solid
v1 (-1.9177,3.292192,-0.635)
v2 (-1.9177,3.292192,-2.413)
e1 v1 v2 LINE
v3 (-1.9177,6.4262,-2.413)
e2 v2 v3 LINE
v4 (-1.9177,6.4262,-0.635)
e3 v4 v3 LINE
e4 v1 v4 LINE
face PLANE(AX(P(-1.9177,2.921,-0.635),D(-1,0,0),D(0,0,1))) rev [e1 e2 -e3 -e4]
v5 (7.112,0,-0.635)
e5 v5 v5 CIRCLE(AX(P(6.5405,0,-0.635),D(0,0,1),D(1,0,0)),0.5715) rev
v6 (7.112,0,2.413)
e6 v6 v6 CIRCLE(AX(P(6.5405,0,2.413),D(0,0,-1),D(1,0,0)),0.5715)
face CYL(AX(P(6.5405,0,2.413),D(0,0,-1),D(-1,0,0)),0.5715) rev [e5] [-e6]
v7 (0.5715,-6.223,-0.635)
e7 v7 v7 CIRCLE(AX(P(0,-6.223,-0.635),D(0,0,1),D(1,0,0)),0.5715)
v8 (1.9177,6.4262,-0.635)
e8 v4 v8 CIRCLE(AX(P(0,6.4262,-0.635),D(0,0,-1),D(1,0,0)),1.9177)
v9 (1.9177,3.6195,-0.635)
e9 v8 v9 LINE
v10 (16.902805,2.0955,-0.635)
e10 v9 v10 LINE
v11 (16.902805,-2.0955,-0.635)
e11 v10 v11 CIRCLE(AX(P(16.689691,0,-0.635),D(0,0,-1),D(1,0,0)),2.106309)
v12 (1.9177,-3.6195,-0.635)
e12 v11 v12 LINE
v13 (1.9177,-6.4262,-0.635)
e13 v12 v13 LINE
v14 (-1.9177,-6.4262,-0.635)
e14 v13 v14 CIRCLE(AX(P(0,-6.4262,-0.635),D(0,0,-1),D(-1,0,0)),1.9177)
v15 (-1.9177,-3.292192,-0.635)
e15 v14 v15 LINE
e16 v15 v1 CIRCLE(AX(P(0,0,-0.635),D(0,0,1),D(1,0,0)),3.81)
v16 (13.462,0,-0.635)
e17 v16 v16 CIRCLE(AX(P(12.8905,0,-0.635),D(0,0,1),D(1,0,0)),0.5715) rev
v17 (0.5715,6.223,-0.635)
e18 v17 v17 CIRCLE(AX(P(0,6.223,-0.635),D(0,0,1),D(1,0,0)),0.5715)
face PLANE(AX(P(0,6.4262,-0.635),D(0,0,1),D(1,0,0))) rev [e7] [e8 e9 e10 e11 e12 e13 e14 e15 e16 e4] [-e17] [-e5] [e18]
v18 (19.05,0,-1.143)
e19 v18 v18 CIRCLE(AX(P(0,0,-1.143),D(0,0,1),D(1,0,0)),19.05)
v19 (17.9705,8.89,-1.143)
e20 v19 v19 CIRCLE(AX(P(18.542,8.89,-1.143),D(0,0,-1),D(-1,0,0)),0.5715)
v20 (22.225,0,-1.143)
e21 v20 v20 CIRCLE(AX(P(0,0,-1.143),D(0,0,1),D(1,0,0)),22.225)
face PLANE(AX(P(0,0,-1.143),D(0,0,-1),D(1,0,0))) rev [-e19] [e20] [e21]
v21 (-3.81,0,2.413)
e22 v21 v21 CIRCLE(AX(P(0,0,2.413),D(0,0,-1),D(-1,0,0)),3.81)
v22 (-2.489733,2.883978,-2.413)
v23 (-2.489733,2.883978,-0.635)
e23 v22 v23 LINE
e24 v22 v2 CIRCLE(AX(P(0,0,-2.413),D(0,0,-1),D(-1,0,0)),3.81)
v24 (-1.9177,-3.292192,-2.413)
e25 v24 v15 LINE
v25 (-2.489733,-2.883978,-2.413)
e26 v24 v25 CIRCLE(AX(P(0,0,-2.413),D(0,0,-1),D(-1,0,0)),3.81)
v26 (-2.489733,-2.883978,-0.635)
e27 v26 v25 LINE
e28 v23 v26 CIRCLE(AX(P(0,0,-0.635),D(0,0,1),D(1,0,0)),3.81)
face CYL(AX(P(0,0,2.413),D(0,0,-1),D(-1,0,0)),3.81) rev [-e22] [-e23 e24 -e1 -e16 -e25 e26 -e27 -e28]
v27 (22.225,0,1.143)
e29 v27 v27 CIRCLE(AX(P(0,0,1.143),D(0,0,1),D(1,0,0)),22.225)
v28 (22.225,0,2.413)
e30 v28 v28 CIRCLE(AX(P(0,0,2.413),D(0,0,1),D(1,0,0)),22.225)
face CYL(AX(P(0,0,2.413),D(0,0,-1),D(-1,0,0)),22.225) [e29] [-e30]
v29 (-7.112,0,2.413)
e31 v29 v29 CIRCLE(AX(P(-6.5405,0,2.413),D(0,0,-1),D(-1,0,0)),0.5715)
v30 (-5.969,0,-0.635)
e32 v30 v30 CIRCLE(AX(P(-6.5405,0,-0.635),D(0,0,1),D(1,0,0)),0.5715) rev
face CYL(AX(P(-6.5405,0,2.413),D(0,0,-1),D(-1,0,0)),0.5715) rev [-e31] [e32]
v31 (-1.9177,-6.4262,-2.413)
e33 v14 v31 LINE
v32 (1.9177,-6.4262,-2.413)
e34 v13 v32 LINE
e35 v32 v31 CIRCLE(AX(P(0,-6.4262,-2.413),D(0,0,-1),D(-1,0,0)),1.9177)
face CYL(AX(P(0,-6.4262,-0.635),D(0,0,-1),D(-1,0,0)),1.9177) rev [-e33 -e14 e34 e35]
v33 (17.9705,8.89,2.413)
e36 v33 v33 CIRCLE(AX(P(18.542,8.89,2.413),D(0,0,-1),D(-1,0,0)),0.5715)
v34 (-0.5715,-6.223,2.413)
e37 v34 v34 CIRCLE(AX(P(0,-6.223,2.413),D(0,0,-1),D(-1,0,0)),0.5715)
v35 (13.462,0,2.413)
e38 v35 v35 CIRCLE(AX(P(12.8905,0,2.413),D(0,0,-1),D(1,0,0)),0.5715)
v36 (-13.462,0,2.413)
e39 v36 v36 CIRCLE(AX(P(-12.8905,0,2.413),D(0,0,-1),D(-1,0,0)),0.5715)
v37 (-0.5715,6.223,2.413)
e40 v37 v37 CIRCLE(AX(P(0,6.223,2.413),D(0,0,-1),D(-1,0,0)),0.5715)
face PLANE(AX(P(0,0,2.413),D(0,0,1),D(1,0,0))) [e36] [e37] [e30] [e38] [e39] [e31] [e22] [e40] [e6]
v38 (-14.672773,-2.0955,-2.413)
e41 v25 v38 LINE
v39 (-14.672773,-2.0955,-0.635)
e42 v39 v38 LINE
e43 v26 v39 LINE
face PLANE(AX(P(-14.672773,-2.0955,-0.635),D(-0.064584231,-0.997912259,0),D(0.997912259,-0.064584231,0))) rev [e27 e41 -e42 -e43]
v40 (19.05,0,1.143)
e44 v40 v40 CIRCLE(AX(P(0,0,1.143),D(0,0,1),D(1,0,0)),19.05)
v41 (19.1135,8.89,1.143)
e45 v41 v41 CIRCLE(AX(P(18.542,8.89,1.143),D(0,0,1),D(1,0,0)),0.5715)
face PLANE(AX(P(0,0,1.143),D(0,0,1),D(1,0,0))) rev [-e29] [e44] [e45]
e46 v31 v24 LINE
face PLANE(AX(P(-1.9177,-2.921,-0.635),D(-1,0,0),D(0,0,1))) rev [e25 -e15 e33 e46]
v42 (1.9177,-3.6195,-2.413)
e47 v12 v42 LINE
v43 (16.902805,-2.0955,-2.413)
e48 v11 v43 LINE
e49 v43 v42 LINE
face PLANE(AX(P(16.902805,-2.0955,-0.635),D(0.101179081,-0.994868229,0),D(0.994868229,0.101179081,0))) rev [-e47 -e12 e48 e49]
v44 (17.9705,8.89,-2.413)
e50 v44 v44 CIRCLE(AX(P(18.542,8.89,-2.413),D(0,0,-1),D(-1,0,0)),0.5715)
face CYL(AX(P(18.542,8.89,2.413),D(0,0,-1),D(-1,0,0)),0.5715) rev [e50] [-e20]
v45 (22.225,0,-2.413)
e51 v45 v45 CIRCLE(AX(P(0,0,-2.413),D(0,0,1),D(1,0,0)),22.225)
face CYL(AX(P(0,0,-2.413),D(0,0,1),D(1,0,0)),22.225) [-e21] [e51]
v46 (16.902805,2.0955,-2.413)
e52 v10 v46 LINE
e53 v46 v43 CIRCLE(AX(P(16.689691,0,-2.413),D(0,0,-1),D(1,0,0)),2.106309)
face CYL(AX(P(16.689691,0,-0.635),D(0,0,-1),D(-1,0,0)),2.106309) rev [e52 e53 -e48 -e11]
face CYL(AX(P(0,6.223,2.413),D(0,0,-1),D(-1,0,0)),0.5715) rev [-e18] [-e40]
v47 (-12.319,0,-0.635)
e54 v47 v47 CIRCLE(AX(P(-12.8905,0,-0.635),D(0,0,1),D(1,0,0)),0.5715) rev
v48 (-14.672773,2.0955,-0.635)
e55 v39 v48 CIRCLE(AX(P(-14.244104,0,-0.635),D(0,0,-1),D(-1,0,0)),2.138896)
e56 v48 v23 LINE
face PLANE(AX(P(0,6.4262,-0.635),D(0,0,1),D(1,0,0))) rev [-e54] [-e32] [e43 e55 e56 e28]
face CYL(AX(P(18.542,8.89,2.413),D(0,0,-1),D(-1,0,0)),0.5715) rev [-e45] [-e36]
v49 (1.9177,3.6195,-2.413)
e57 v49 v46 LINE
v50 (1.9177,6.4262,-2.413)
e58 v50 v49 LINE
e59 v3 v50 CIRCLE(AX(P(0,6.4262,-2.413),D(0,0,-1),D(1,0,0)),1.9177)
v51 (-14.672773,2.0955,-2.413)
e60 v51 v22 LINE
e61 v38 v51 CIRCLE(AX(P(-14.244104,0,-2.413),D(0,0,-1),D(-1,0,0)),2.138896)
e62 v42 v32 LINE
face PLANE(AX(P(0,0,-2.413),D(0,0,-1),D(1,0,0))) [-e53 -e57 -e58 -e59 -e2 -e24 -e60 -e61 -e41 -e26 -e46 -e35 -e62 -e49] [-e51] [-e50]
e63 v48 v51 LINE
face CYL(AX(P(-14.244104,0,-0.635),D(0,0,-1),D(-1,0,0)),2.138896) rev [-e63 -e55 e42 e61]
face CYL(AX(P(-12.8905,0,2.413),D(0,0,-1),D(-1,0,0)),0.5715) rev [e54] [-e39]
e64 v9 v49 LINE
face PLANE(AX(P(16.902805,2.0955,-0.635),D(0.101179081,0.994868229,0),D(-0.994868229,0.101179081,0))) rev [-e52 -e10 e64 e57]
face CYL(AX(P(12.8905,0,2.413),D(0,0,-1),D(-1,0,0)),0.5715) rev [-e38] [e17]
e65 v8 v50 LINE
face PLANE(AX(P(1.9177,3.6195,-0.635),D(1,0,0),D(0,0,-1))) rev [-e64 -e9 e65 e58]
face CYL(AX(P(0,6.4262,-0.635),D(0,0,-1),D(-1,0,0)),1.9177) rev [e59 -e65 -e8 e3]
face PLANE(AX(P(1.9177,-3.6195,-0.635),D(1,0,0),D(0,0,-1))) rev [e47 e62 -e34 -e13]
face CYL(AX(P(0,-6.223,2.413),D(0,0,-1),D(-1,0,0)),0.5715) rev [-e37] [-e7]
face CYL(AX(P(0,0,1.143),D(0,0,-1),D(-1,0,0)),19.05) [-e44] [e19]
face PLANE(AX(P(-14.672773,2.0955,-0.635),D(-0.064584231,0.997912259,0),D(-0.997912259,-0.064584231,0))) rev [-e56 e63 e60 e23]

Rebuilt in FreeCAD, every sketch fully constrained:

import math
import FreeCAD as App
import Part
import Sketcher
Q = App.Units.Quantity

doc = App.newDocument("Part")
body = doc.addObject("PartDesign::Body", "Body")

# Sketch on XY plane
sketch1 = doc.addObject("Sketcher::SketchObject", "Sketch")
body.addObject(sketch1)
sketch1.AttachmentSupport = (doc.XY_Plane, [""])
sketch1.MapMode = "FlatFace"
sketch1.addGeometry(Part.Circle(App.Vector(0, 0, 0), App.Vector(0, 0, 1), 19), False)
sketch1.addConstraint(Sketcher.Constraint("Coincident", 0, 3, -1, 1))
sketch1.addConstraint(Sketcher.Constraint("Diameter", 0, Q("1.5 in")))
pad1 = doc.addObject("PartDesign::Pad", "Pad")
body.addObject(pad1)
pad1.Profile = sketch1
pad1.Length = Q("0.09 in")
pad1.Midplane = True

# Sketch on XY plane
sketch2 = doc.addObject("Sketcher::SketchObject", "Sketch001")
body.addObject(sketch2)
sketch2.AttachmentSupport = (doc.XY_Plane, [""])
sketch2.MapMode = "FlatFace"
sketch2.AttachmentOffset = App.Placement(App.Vector(0, 0, 0.045 * 25.4), App.Rotation())
sketch2.addGeometry(Part.Circle(App.Vector(0, 0, 0), App.Vector(0, 0, 1), 22), False)
sketch2.addConstraint(Sketcher.Constraint("Coincident", 0, 3, -1, 1))
sketch2.addConstraint(Sketcher.Constraint("Diameter", 0, Q("1.75 in")))
pad2 = doc.addObject("PartDesign::Pad", "Pad001")
body.addObject(pad2)
pad2.Profile = sketch2
pad2.Length = Q("0.05 in")
doc.recompute()

mirrored = doc.addObject("PartDesign::Mirrored", "Mirrored")
body.addObject(mirrored)
mirrored.Originals = [pad2]
mirrored.MirrorPlane = (doc.XY_Plane, [""])
body.Tip = mirrored

# Sketch on XY plane
sketch3 = doc.addObject("Sketcher::SketchObject", "Sketch002")
body.addObject(sketch3)
sketch3.AttachmentSupport = (doc.XY_Plane, [""])
sketch3.MapMode = "FlatFace"
sketch3.AttachmentOffset = App.Placement(App.Vector(0, 0, -0.095 * 25.4), App.Rotation())
sketch3.addGeometry(Part.Circle(App.Vector(0, 0, 0), App.Vector(0, 0, 1), 3.6), False)
sketch3.addConstraint(Sketcher.Constraint("Coincident", 0, 3, -1, 1))
sketch3.addConstraint(Sketcher.Constraint("Diameter", 0, Q("0.28 in")))
pocket1 = doc.addObject("PartDesign::Pocket", "Pocket")
body.addObject(pocket1)
pocket1.Profile = sketch3
pocket1.Type = "ThroughAll"
pocket1.Reversed = True

# Sketch on XY plane
sketch4 = doc.addObject("Sketcher::SketchObject", "Sketch003")
body.addObject(sketch4)
sketch4.AttachmentSupport = (doc.XY_Plane, [""])
sketch4.MapMode = "FlatFace"
sketch4.AttachmentOffset = App.Placement(App.Vector(0, 0, -0.095 * 25.4), App.Rotation())
sketch4.addGeometry(Part.Circle(App.Vector(-12.9, 0, 0), App.Vector(0, 0, 1), 0.6), False)
sketch4.addGeometry(Part.Circle(App.Vector(-6.5, 0, 0), App.Vector(0, 0, 1), 0.6), False)
sketch4.addGeometry(Part.Circle(App.Vector(12.9, 0, 0), App.Vector(0, 0, 1), 0.6), False)
sketch4.addGeometry(Part.Circle(App.Vector(6.5, 0, 0), App.Vector(0, 0, 1), 0.6), False)
sketch4.addConstraint(Sketcher.Constraint("Equal", 0, 1))
sketch4.addConstraint(Sketcher.Constraint("Equal", 1, 2))
sketch4.addConstraint(Sketcher.Constraint("Equal", 2, 3))
sketch4.addConstraint(Sketcher.Constraint("Symmetric", 0, 3, 2, 3, -1, 1))
sketch4.addConstraint(Sketcher.Constraint("Symmetric", 1, 3, 3, 3, -1, 1))
sketch4.addConstraint(Sketcher.Constraint("PointOnObject", 0, 3, -1))
sketch4.addConstraint(Sketcher.Constraint("PointOnObject", 1, 3, -1))
sketch4.addConstraint(Sketcher.Constraint("Diameter", 0, Q("0.045 in")))
sketch4.addConstraint(Sketcher.Constraint("DistanceX", 0, 3, 1, 3, Q("0.25 in")))
sketch4.addConstraint(Sketcher.Constraint("DistanceX", 1, 3, 2, 3, Q("0.765 in")))
pocket2 = doc.addObject("PartDesign::Pocket", "Pocket001")
body.addObject(pocket2)
pocket2.Profile = sketch4
pocket2.Type = "ThroughAll"
pocket2.Reversed = True

# Sketch on XY plane
sketch5 = doc.addObject("Sketcher::SketchObject", "Sketch004")
body.addObject(sketch5)
sketch5.AttachmentSupport = (doc.XY_Plane, [""])
sketch5.MapMode = "FlatFace"
sketch5.AttachmentOffset = App.Placement(App.Vector(0, 0, -0.095 * 25.4), App.Rotation())
sketch5.addGeometry(Part.Circle(App.Vector(18.5, 8.9, 0), App.Vector(0, 0, 1), 0.6), False)
sketch5.addConstraint(Sketcher.Constraint("Diameter", 0, Q("0.045 in")))
sketch5.addConstraint(Sketcher.Constraint("DistanceX", -1, 1, 0, 3, Q("0.73 in")))
sketch5.addConstraint(Sketcher.Constraint("DistanceY", -1, 1, 0, 3, Q("0.35 in")))
pocket3 = doc.addObject("PartDesign::Pocket", "Pocket002")
body.addObject(pocket3)
pocket3.Profile = sketch5
pocket3.Type = "ThroughAll"
pocket3.Reversed = True

# Sketch on XY plane
sketch6 = doc.addObject("Sketcher::SketchObject", "Sketch005")
body.addObject(sketch6)
sketch6.AttachmentSupport = (doc.XY_Plane, [""])
sketch6.MapMode = "FlatFace"
sketch6.AttachmentOffset = App.Placement(App.Vector(0, 0, -0.095 * 25.4), App.Rotation())
sketch6.addGeometry(Part.LineSegment(App.Vector(1.9, 6.4, 0), App.Vector(1.9, 3.6, 0)), False)
sketch6.addGeometry(Part.LineSegment(App.Vector(1.9, 3.6, 0), App.Vector(16.9, 2.1, 0)), False)
sketch6.addGeometry(Part.ArcOfCircle(Part.Circle(App.Vector(16.7, 0, 0), App.Vector(0, 0, 1), 2.1), math.radians(-84), math.radians(84)), False)
sketch6.addGeometry(Part.LineSegment(App.Vector(16.9, -2.1, 0), App.Vector(1.9, -3.6, 0)), False)
sketch6.addGeometry(Part.LineSegment(App.Vector(1.9, -3.6, 0), App.Vector(1.9, -6.4, 0)), False)
sketch6.addGeometry(Part.ArcOfCircle(Part.Circle(App.Vector(0, -6.4, 0), App.Vector(0, 0, 1), 1.9), math.radians(180), math.radians(360)), False)
sketch6.addGeometry(Part.LineSegment(App.Vector(-1.9, -6.4, 0), App.Vector(-1.9, -2.9, 0)), False)
sketch6.addGeometry(Part.LineSegment(App.Vector(-1.9, -2.9, 0), App.Vector(-14.7, -2.1, 0)), False)
sketch6.addGeometry(Part.ArcOfCircle(Part.Circle(App.Vector(-14.2, 0, 0), App.Vector(0, 0, 1), 2.1), math.radians(102), math.radians(258)), False)
sketch6.addGeometry(Part.LineSegment(App.Vector(-14.7, 2.1, 0), App.Vector(-1.9, 2.9, 0)), False)
sketch6.addGeometry(Part.LineSegment(App.Vector(-1.9, 2.9, 0), App.Vector(-1.9, 6.4, 0)), False)
sketch6.addGeometry(Part.ArcOfCircle(Part.Circle(App.Vector(0, 6.4, 0), App.Vector(0, 0, 1), 1.9), math.radians(0), math.radians(180)), False)
sketch6.addConstraint(Sketcher.Constraint("Coincident", 0, 2, 1, 1))
sketch6.addConstraint(Sketcher.Constraint("Tangent", 1, 2, 2, 2))
sketch6.addConstraint(Sketcher.Constraint("Tangent", 2, 1, 3, 1))
sketch6.addConstraint(Sketcher.Constraint("Coincident", 3, 2, 4, 1))
sketch6.addConstraint(Sketcher.Constraint("Tangent", 4, 2, 5, 2))
sketch6.addConstraint(Sketcher.Constraint("Tangent", 5, 1, 6, 1))
sketch6.addConstraint(Sketcher.Constraint("Coincident", 6, 2, 7, 1))
sketch6.addConstraint(Sketcher.Constraint("Coincident", 7, 2, 8, 2))
sketch6.addConstraint(Sketcher.Constraint("Coincident", 8, 1, 9, 1))
sketch6.addConstraint(Sketcher.Constraint("Coincident", 9, 2, 10, 1))
sketch6.addConstraint(Sketcher.Constraint("Tangent", 10, 2, 11, 2))
sketch6.addConstraint(Sketcher.Constraint("Tangent", 11, 1, 0, 1))
sketch6.addConstraint(Sketcher.Constraint("Vertical", 0))
sketch6.addConstraint(Sketcher.Constraint("Vertical", 4))
sketch6.addConstraint(Sketcher.Constraint("Vertical", 6))
sketch6.addConstraint(Sketcher.Constraint("Vertical", 10))
sketch6.addConstraint(Sketcher.Constraint("Equal", 5, 11))
sketch6.addConstraint(Sketcher.Constraint("Symmetric", 5, 3, 11, 3, -1, 1))
sketch6.addConstraint(Sketcher.Constraint("Symmetric", 1, 2, 2, 1, -1))
sketch6.addConstraint(Sketcher.Constraint("Symmetric", 7, 2, 8, 1, -1))
sketch6.addConstraint(Sketcher.Constraint("Symmetric", 6, 2, 9, 2, -1))
sketch6.addConstraint(Sketcher.Constraint("Horizontal", 2, 1, 7, 2))
sketch6.addConstraint(Sketcher.Constraint("Radius", 5, Q("0.0755 in")))
sketch6.addConstraint(Sketcher.Constraint("DistanceY", 6, 1, 6, 2, Q("0.138 in")))
sketch6.addConstraint(Sketcher.Constraint("DistanceY", 1, 2, 0, 2, Q("0.06 in")))
sketch6.addConstraint(Sketcher.Constraint("DistanceY", 6, 2, 9, 2, Q("0.23 in")))
sketch6.addConstraint(Sketcher.Constraint("DistanceY", 0, 2, 0, 1, Q("0.1105 in")))
sketch6.addConstraint(Sketcher.Constraint("Radius", 8, Q("2.138896 mm")))
sketch6.addConstraint(Sketcher.Constraint("DistanceX", -1, 1, 2, 3, Q("16.689691 mm")))
sketch6.addConstraint(Sketcher.Constraint("DistanceX", 8, 3, 1, 2, Q("31.146909 mm")))
pocket4 = doc.addObject("PartDesign::Pocket", "Pocket003")
body.addObject(pocket4)
pocket4.Profile = sketch6
pocket4.Length = Q("0.07 in")
pocket4.Reversed = True

# Sketch on XY plane
sketch7 = doc.addObject("Sketcher::SketchObject", "Sketch006")
body.addObject(sketch7)
sketch7.AttachmentSupport = (doc.XY_Plane, [""])
sketch7.MapMode = "FlatFace"
sketch7.AttachmentOffset = App.Placement(App.Vector(0, 0, -0.095 * 25.4), App.Rotation())
sketch7.addGeometry(Part.Circle(App.Vector(0, -6.2, 0), App.Vector(0, 0, 1), 0.6), False)
sketch7.addGeometry(Part.Circle(App.Vector(0, 6.2, 0), App.Vector(0, 0, 1), 0.6), False)
sketch7.addConstraint(Sketcher.Constraint("Equal", 0, 1))
sketch7.addConstraint(Sketcher.Constraint("Symmetric", 0, 3, 1, 3, -1, 1))
sketch7.addConstraint(Sketcher.Constraint("PointOnObject", 0, 3, -2))
sketch7.addConstraint(Sketcher.Constraint("Diameter", 0, Q("0.045 in")))
sketch7.addConstraint(Sketcher.Constraint("DistanceY", 0, 3, 1, 3, Q("0.49 in")))
pocket5 = doc.addObject("PartDesign::Pocket", "Pocket004")
body.addObject(pocket5)
pocket5.Profile = sketch7
pocket5.Type = "ThroughAll"
pocket5.Reversed = True

# Sketch on XY plane
sketch8 = doc.addObject("Sketcher::SketchObject", "Sketch007")
body.addObject(sketch8)
sketch8.AttachmentSupport = (doc.XY_Plane, [""])
sketch8.MapMode = "FlatFace"
sketch8.AttachmentOffset = App.Placement(App.Vector(0, 0, -0.095 * 25.4), App.Rotation())
sketch8.addGeometry(Part.Circle(App.Vector(0, 0, 0), App.Vector(0, 0, 1), 3.8), False)
sketch8.addConstraint(Sketcher.Constraint("Coincident", 0, 3, -1, 1))
sketch8.addConstraint(Sketcher.Constraint("Diameter", 0, Q("0.3 in")))
pocket6 = doc.addObject("PartDesign::Pocket", "Pocket005")
body.addObject(pocket6)
pocket6.Profile = sketch8
pocket6.Type = "ThroughAll"
pocket6.Reversed = True

doc.recompute()
